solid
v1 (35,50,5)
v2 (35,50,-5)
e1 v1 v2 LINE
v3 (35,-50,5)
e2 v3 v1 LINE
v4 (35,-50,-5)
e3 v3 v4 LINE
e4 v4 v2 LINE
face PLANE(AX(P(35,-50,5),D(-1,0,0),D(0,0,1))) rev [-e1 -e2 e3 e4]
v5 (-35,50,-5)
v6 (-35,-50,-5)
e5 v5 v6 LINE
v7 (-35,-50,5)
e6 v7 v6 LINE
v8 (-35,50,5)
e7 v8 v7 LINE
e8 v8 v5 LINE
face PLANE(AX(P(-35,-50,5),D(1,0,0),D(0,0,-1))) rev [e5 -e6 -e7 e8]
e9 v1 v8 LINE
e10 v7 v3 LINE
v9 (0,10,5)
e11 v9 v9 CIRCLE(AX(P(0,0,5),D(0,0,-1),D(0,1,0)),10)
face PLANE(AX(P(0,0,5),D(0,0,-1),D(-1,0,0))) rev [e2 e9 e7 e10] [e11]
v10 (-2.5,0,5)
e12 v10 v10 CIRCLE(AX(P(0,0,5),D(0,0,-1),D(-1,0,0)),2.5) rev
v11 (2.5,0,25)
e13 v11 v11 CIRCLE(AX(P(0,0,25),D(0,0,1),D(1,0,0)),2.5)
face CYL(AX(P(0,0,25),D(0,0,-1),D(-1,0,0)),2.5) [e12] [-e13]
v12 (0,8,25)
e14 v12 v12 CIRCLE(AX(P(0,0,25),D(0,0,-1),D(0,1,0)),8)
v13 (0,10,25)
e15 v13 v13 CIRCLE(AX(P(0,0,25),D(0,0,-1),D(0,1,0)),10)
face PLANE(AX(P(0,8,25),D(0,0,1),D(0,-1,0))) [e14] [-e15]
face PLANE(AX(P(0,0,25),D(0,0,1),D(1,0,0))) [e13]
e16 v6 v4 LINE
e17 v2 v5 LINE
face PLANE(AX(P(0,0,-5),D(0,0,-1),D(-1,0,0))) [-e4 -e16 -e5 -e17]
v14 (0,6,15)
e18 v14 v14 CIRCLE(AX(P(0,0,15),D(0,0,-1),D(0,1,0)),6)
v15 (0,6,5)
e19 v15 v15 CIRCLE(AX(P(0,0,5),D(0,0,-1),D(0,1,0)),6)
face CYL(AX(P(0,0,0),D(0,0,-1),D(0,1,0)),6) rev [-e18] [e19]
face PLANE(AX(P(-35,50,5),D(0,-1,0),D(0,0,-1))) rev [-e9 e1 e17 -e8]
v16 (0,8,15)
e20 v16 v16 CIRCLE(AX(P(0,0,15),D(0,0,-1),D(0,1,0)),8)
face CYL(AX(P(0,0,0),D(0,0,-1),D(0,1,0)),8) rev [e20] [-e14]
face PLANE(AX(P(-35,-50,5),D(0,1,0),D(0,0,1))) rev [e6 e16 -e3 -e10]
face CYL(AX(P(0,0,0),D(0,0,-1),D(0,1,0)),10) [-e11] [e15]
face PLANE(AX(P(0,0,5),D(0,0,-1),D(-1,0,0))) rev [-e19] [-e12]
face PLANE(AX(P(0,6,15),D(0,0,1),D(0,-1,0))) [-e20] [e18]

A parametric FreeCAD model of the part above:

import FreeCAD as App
import Part
import Sketcher

V = App.Vector
Q = App.Units.Quantity

doc = App.newDocument("Part")
params = doc.addObject("Spreadsheet::Sheet", "Params")
for row, (alias, value) in enumerate([
    ("sketch1_width", "70 mm"),
    ("sketch1_height", "100 mm"),
    ("pad1_length", "10 mm"),
    ("sketch2_diameter", "5 mm"),
    ("pad2_length", "20 mm"),
    ("sketch3_width", "4 mm"),
    ("sketch3_height", "10 mm"),
    ("revolution_angle", "360 deg"),
], start=1):
    params.set(f"A{row}", alias)
    params.set(f"B{row}", "=" + value)
    params.setAlias(f"B{row}", alias)

body = doc.addObject("PartDesign::Body", "Body")

# Sketch on XY plane
sketch1 = body.newObject("Sketcher::SketchObject", "Sketch")
sketch1.AttachmentSupport = (doc.getObject("XY_Plane"), [""])
sketch1.MapMode = "FlatFace"
sketch1.addGeometry(Part.LineSegment(V(-35, 50, 0), V(-35, -50, 0)), False)
sketch1.addGeometry(Part.LineSegment(V(-35, -50, 0), V(35, -50, 0)), False)
sketch1.addGeometry(Part.LineSegment(V(35, -50, 0), V(35, 50, 0)), False)
sketch1.addGeometry(Part.LineSegment(V(35, 50, 0), V(-35, 50, 0)), False)
sketch1.addConstraint(Sketcher.Constraint("Coincident", 0, 2, 1, 1))
sketch1.addConstraint(Sketcher.Constraint("Coincident", 1, 2, 2, 1))
sketch1.addConstraint(Sketcher.Constraint("Coincident", 2, 2, 3, 1))
sketch1.addConstraint(Sketcher.Constraint("Coincident", 3, 2, 0, 1))
sketch1.addConstraint(Sketcher.Constraint("Vertical", 0))
sketch1.addConstraint(Sketcher.Constraint("Horizontal", 1))
sketch1.addConstraint(Sketcher.Constraint("Vertical", 2))
sketch1.addConstraint(Sketcher.Constraint("Horizontal", 3))
sketch1.addConstraint(Sketcher.Constraint("Symmetric", 0, 2, 2, 2, -1, 1))
sketch1.addConstraint(Sketcher.Constraint("DistanceX", 1, 1, 1, 2, Q("70 mm")))
sketch1.addConstraint(Sketcher.Constraint("DistanceY", 0, 2, 0, 1, Q("100 mm")))
sketch1.setExpression("Constraints[9]", "Params.sketch1_width")
sketch1.setExpression("Constraints[10]", "Params.sketch1_height")
pad1 = body.newObject("PartDesign::Pad", "Pad")
pad1.Profile = sketch1
pad1.setExpression("Length", "Params.pad1_length")
pad1.Midplane = True

# Sketch on XY plane
sketch2 = body.newObject("Sketcher::SketchObject", "Sketch001")
sketch2.AttachmentSupport = (doc.getObject("XY_Plane"), [""])
sketch2.MapMode = "FlatFace"
sketch2.AttachmentOffset = App.Placement(V(0, 0, 5), App.Rotation())
sketch2.addGeometry(Part.Circle(V(0, 0, 0), V(0, 0, 1), 2.5), False)
sketch2.addConstraint(Sketcher.Constraint("Coincident", 0, 3, -1, 1))
sketch2.addConstraint(Sketcher.Constraint("Diameter", 0, Q("5 mm")))
sketch2.setExpression("Constraints[1]", "Params.sketch2_diameter")
pad2 = body.newObject("PartDesign::Pad", "Pad001")
pad2.Profile = sketch2
pad2.setExpression("Length", "Params.pad2_length")

# Sketch on YZ plane
sketch3 = body.newObject("Sketcher::SketchObject", "Sketch002")
sketch3.AttachmentSupport = (doc.getObject("YZ_Plane"), [""])
sketch3.MapMode = "FlatFace"
sketch3.addGeometry(Part.LineSegment(V(6, 15, 0), V(6, 5, 0)), False)
sketch3.addGeometry(Part.LineSegment(V(6, 5, 0), V(10, 5, 0)), False)
sketch3.addGeometry(Part.LineSegment(V(10, 5, 0), V(10, 25, 0)), False)
sketch3.addGeometry(Part.LineSegment(V(10, 25, 0), V(8, 25, 0)), False)
sketch3.addGeometry(Part.LineSegment(V(8, 25, 0), V(8, 15, 0)), False)
sketch3.addGeometry(Part.LineSegment(V(8, 15, 0), V(6, 15, 0)), False)
sketch3.addConstraint(Sketcher.Constraint("Coincident", 0, 2, 1, 1))
sketch3.addConstraint(Sketcher.Constraint("Coincident", 1, 2, 2, 1))
sketch3.addConstraint(Sketcher.Constraint("Coincident", 2, 2, 3, 1))
sketch3.addConstraint(Sketcher.Constraint("Coincident", 3, 2, 4, 1))
sketch3.addConstraint(Sketcher.Constraint("Coincident", 4, 2, 5, 1))
sketch3.addConstraint(Sketcher.Constraint("Coincident", 5, 2, 0, 1))
sketch3.addConstraint(Sketcher.Constraint("Vertical", 0))
sketch3.addConstraint(Sketcher.Constraint("Horizontal", 1))
sketch3.addConstraint(Sketcher.Constraint("Vertical", 2))
sketch3.addConstraint(Sketcher.Constraint("Horizontal", 3))
sketch3.addConstraint(Sketcher.Constraint("Vertical", 4))
sketch3.addConstraint(Sketcher.Constraint("Horizontal", 5))
sketch3.addConstraint(Sketcher.Constraint("Equal", 3, 5))
sketch3.addConstraint(Sketcher.Constraint("Equal", 0, 4))
sketch3.addConstraint(Sketcher.Constraint("DistanceX", 1, 1, 1, 2, Q("4 mm")))
sketch3.addConstraint(Sketcher.Constraint("DistanceY", 0, 2, 0, 1, Q("10 mm")))
sketch3.addConstraint(Sketcher.Constraint("DistanceX", -1, 1, 0, 2, Q("6 mm")))
sketch3.addConstraint(Sketcher.Constraint("DistanceY", -1, 1, 0, 2, Q("5 mm")))
sketch3.setExpression("Constraints[14]", "Params.sketch3_width")
sketch3.setExpression("Constraints[15]", "Params.sketch3_height")
revolution = body.newObject("PartDesign::Revolution", "Revolution")
revolution.Profile = sketch3
revolution.ReferenceAxis = (sketch3, ["V_Axis"])
revolution.setExpression("Angle", "Params.revolution_angle")

doc.recompute()
